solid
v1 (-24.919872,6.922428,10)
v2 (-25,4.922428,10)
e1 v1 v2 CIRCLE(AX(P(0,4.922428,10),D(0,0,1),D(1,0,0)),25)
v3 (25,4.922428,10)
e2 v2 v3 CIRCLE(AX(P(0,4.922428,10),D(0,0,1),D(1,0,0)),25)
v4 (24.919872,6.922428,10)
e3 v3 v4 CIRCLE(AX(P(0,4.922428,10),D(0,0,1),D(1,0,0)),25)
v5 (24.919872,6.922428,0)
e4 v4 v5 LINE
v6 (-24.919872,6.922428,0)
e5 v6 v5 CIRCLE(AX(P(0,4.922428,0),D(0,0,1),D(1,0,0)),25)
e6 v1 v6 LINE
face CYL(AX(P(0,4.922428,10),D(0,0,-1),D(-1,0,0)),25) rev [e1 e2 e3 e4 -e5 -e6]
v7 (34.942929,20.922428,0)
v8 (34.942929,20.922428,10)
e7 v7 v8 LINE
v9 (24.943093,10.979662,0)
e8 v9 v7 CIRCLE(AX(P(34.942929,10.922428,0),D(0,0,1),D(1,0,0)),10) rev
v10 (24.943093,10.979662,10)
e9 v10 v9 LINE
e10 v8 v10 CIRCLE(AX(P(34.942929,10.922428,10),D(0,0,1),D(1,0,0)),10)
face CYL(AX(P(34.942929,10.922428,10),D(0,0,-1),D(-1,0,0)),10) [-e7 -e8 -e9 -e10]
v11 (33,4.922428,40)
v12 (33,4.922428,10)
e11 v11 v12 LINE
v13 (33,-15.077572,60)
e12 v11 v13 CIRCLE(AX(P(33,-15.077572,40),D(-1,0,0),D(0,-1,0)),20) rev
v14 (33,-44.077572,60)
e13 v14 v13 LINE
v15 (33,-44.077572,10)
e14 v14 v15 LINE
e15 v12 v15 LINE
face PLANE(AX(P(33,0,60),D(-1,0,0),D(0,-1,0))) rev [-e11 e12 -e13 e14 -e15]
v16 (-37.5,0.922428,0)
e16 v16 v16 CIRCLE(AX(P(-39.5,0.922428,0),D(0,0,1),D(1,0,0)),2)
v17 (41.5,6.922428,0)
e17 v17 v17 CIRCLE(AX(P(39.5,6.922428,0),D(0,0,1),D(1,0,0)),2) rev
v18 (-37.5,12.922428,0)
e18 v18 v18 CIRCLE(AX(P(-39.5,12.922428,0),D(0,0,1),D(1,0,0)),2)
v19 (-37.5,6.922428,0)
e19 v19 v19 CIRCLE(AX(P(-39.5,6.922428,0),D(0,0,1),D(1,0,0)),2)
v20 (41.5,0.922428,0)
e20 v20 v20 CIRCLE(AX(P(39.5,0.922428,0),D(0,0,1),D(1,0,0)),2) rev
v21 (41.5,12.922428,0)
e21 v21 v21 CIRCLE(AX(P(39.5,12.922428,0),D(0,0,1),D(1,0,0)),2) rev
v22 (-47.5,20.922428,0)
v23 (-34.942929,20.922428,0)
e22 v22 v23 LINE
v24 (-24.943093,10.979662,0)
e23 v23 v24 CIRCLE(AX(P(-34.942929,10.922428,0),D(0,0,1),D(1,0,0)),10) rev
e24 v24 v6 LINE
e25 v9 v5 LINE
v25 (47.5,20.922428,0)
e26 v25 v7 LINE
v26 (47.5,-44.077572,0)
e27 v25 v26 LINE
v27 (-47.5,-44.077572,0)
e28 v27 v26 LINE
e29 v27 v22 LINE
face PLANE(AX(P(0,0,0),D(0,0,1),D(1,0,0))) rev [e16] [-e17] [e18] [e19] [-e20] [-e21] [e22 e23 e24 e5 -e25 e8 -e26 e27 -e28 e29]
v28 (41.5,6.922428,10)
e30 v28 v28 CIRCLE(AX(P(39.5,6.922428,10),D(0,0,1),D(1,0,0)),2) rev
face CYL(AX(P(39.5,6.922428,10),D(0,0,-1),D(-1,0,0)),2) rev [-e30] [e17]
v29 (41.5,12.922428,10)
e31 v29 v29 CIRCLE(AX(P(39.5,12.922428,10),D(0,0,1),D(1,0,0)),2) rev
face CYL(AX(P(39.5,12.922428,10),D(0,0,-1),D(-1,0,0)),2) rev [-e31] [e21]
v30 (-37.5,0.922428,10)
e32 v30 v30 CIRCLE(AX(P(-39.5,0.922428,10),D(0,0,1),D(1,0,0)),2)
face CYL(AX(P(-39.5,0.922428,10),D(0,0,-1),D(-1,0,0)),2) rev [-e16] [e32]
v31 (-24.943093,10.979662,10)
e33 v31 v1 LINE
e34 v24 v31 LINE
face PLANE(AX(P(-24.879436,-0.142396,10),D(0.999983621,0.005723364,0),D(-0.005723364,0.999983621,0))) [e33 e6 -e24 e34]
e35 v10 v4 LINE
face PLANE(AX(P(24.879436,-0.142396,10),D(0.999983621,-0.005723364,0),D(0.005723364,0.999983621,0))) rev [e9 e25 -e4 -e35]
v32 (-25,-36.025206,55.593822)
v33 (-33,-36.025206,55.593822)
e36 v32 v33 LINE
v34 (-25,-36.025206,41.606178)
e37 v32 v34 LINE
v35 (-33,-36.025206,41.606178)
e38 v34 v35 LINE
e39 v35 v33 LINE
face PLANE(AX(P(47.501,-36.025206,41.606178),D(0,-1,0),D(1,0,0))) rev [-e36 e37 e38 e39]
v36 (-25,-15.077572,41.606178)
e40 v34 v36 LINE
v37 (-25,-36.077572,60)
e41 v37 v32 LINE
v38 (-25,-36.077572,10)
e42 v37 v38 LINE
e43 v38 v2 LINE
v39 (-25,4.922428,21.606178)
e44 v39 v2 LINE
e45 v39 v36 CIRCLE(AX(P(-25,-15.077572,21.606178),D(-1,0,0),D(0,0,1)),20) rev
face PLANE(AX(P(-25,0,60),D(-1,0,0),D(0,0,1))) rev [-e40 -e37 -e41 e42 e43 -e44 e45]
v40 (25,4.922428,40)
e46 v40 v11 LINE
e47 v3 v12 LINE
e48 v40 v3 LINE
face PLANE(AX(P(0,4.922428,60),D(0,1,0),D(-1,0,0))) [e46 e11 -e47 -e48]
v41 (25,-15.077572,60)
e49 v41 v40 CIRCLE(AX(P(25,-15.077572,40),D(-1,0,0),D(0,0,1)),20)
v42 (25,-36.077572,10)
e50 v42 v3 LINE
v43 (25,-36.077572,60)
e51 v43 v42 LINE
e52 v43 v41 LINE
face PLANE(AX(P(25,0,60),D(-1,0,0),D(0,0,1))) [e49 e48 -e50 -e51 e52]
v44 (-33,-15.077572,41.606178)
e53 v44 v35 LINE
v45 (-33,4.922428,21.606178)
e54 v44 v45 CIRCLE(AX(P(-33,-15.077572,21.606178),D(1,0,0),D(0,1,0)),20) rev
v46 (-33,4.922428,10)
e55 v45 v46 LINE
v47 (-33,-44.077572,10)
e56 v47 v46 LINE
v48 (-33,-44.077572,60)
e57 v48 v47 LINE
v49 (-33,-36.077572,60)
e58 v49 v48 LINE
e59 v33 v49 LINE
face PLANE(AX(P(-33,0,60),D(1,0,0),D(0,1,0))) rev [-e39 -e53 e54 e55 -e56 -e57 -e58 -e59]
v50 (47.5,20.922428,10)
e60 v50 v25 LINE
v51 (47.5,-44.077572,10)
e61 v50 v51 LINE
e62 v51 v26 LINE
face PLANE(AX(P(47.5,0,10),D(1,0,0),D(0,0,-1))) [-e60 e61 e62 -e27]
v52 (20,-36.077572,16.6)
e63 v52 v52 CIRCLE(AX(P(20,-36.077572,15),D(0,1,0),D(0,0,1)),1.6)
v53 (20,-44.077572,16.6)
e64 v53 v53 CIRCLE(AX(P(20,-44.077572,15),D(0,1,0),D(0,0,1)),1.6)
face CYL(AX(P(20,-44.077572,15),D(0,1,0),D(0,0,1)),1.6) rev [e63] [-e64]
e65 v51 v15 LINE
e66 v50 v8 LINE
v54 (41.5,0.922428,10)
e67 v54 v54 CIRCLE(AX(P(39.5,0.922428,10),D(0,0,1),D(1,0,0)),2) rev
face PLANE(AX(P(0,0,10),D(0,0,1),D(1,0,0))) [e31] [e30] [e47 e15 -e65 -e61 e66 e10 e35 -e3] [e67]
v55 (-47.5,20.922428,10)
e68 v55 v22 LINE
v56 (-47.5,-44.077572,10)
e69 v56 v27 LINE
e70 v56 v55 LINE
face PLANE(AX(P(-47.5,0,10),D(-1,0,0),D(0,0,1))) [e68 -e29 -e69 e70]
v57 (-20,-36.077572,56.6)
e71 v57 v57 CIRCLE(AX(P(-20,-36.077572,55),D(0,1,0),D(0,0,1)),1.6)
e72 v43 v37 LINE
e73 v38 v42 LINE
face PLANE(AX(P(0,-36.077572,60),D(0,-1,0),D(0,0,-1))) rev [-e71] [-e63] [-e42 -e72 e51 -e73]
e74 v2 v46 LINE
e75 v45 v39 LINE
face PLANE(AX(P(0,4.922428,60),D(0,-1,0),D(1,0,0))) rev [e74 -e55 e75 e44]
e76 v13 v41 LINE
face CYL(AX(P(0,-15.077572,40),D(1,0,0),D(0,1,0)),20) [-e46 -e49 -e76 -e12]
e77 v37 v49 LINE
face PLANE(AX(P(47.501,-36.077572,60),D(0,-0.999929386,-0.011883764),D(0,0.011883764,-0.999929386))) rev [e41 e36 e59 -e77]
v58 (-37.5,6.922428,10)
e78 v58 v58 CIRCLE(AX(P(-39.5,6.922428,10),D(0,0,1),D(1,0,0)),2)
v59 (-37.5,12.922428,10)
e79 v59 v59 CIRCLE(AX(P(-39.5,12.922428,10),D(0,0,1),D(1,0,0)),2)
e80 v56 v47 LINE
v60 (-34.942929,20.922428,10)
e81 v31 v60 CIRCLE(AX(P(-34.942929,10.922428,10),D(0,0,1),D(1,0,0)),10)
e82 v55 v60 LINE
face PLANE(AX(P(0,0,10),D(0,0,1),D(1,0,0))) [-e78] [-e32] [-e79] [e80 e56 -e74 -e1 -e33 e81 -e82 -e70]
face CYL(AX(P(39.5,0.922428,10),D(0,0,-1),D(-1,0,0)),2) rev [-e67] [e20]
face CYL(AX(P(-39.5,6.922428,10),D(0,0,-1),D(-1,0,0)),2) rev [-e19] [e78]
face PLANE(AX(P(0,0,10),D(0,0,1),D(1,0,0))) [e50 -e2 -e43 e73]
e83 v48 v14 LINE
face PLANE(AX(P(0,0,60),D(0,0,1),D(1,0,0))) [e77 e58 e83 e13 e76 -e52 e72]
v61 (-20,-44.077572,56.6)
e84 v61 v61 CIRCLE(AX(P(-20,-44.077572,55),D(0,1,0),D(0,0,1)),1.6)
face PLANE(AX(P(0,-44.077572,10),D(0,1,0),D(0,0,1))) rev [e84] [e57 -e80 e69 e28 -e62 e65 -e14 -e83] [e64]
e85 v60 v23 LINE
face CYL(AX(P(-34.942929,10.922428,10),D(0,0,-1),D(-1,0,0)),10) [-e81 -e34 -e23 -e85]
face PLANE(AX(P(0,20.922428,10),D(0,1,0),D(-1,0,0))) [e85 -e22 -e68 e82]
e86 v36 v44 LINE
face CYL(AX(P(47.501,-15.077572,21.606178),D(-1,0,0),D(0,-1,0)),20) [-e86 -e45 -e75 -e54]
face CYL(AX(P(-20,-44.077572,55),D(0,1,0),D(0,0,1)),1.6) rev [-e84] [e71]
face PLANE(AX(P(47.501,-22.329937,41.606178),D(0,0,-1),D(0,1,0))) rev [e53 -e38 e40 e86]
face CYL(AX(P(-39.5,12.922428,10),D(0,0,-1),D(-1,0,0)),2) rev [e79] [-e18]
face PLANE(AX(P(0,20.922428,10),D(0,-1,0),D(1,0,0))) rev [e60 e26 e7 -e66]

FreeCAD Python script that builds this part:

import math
import FreeCAD as App
import Part
import Sketcher
Q = App.Units.Quantity


def edges_at(feature, points):
    """Names of the edges that pass closest to the given points."""
    edges = feature.Shape.Edges
    near = lambda p: min(range(len(edges)), key=lambda i: edges[i].distToShape(Part.Vertex(*p))[0])
    return sorted({f"Edge{near(p) + 1}" for p in points})


def add_polygon(sketch, points):
    """Adds a closed chain of lines whose ends are joined by coincident constraints."""
    first, n = sketch.GeometryCount, len(points)
    for a, b in zip(points, points[1:] + points[:1]):
        sketch.addGeometry(Part.LineSegment(App.Vector(*a, 0), App.Vector(*b, 0)), False)
    for i in range(n):
        sketch.addConstraint(Sketcher.Constraint("Coincident", first + i, 2, first + (i + 1) % n, 1))

doc = App.newDocument("Part")
body = doc.addObject("PartDesign::Body", "Body")

# Sketch on XY plane
sketch1 = doc.addObject("Sketcher::SketchObject", "Sketch")
body.addObject(sketch1)
sketch1.AttachmentSupport = (doc.XY_Plane, [""])
sketch1.MapMode = "FlatFace"
sketch1.addGeometry(Part.LineSegment(App.Vector(-47.5, 20.922428, 0), App.Vector(-47.5, -44.077572, 0)), False)
sketch1.addGeometry(Part.LineSegment(App.Vector(-47.5, -44.077572, 0), App.Vector(-33, -44.077572, 0)), False)
sketch1.addGeometry(Part.LineSegment(App.Vector(-33, -44.077572, 0), App.Vector(-33, 4.922428, 0)), False)
sketch1.addGeometry(Part.LineSegment(App.Vector(-33, 4.922428, 0), App.Vector(-25, 4.922428, 0)), False)
sketch1.addGeometry(Part.ArcOfCircle(Part.Circle(App.Vector(0, 4.922428, 0), App.Vector(0, 0, 1), 25), math.radians(175.411434), math.radians(180)), False)
sketch1.addGeometry(Part.LineSegment(App.Vector(-24.919872, 6.922428, 0), App.Vector(-25, 20.922428, 0)), False)
sketch1.addGeometry(Part.LineSegment(App.Vector(-25, 20.922428, 0), App.Vector(-47.5, 20.922428, 0)), False)
sketch1.addGeometry(Part.Circle(App.Vector(-39.5, 0.922428, 0), App.Vector(0, 0, 1), 2), False)
sketch1.addGeometry(Part.Circle(App.Vector(-39.5, 6.922428, 0), App.Vector(0, 0, 1), 2), False)
sketch1.addGeometry(Part.Circle(App.Vector(-39.5, 12.922428, 0), App.Vector(0, 0, 1), 2), False)
sketch1.addConstraint(Sketcher.Constraint("Coincident", 0, 2, 1, 1))
sketch1.addConstraint(Sketcher.Constraint("Coincident", 1, 2, 2, 1))
sketch1.addConstraint(Sketcher.Constraint("Coincident", 2, 2, 3, 1))
sketch1.addConstraint(Sketcher.Constraint("Coincident", 3, 2, 4, 2))
sketch1.addConstraint(Sketcher.Constraint("Coincident", 4, 1, 5, 1))
sketch1.addConstraint(Sketcher.Constraint("Coincident", 5, 2, 6, 1))
sketch1.addConstraint(Sketcher.Constraint("Coincident", 6, 2, 0, 1))
sketch1.addConstraint(Sketcher.Constraint("Vertical", 0))
sketch1.addConstraint(Sketcher.Constraint("Horizontal", 1))
sketch1.addConstraint(Sketcher.Constraint("Vertical", 2))
sketch1.addConstraint(Sketcher.Constraint("Horizontal", 3))
sketch1.addConstraint(Sketcher.Constraint("Horizontal", 6))
sketch1.addConstraint(Sketcher.Constraint("Equal", 7, 8))
sketch1.addConstraint(Sketcher.Constraint("Equal", 8, 9))
sketch1.addConstraint(Sketcher.Constraint("PointOnObject", 4, 3, -2))
sketch1.addConstraint(Sketcher.Constraint("Horizontal", 4, 3, 2, 2))
sketch1.addConstraint(Sketcher.Constraint("Horizontal", 8, 3, 4, 1))
sketch1.addConstraint(Sketcher.Constraint("Vertical", 7, 3, 8, 3))
sketch1.addConstraint(Sketcher.Constraint("Vertical", 8, 3, 9, 3))
sketch1.addConstraint(Sketcher.Constraint("Vertical", 3, 2, 5, 2))
sketch1.addConstraint(Sketcher.Constraint("Diameter", 7, Q("4 mm")))
sketch1.addConstraint(Sketcher.Constraint("Radius", 4, Q("25 mm")))
sketch1.addConstraint(Sketcher.Constraint("DistanceX", 3, 1, 3, 2, Q("8 mm")))
sketch1.addConstraint(Sketcher.Constraint("DistanceY", 0, 2, 0, 1, Q("65 mm")))
sketch1.addConstraint(Sketcher.Constraint("DistanceY", 2, 1, 2, 2, Q("49 mm")))
sketch1.addConstraint(Sketcher.Constraint("DistanceX", 1, 1, 1, 2, Q("14.5 mm")))
sketch1.addConstraint(Sketcher.Constraint("DistanceY", 7, 3, 4, 3, Q("4 mm")))
sketch1.addConstraint(Sketcher.Constraint("DistanceY", 7, 3, 8, 3, Q("6 mm")))
sketch1.addConstraint(Sketcher.Constraint("DistanceY", 8, 3, 9, 3, Q("6 mm")))
sketch1.addConstraint(Sketcher.Constraint("DistanceX", 0, 2, 7, 3, Q("8 mm")))
sketch1.addConstraint(Sketcher.Constraint("DistanceY", -1, 1, 4, 3, Q("4.922428 mm")))
pad1 = doc.addObject("PartDesign::Pad", "Pad")
body.addObject(pad1)
pad1.Profile = sketch1
pad1.Length = 10
body2 = doc.addObject("PartDesign::Body", "Body001")

# Sketch on XY plane
sketch2 = doc.addObject("Sketcher::SketchObject", "Sketch001")
body2.addObject(sketch2)
sketch2.AttachmentSupport = (doc.getObject("XY_Plane001"), [""])
sketch2.MapMode = "FlatFace"
sketch2.addGeometry(Part.ArcOfCircle(Part.Circle(App.Vector(0, 4.922428, 0), App.Vector(0, 0, 1), 25), math.radians(-180), math.radians(-9.206896)), False)
sketch2.addGeometry(Part.LineSegment(App.Vector(-25, 4.922428, 0), App.Vector(-25, -36.077572, 0)), False)
sketch2.addGeometry(Part.LineSegment(App.Vector(-25, -36.077572, 0), App.Vector(25, -36.077572, 0)), False)
sketch2.addGeometry(Part.LineSegment(App.Vector(25, -36.077572, 0), App.Vector(25, 4.922428, 0)), False)
sketch2.addGeometry(Part.ArcOfCircle(Part.Circle(App.Vector(0, 4.922428, 0), App.Vector(0, 0, 1), 25), math.radians(-9.206896), math.radians(0)), False)
sketch2.addConstraint(Sketcher.Constraint("Tangent", 0, 1, 1, 1))
sketch2.addConstraint(Sketcher.Constraint("Coincident", 1, 2, 2, 1))
sketch2.addConstraint(Sketcher.Constraint("Coincident", 2, 2, 3, 1))
sketch2.addConstraint(Sketcher.Constraint("Tangent", 3, 2, 4, 2))
sketch2.addConstraint(Sketcher.Constraint("Tangent", 4, 1, 0, 2))
sketch2.addConstraint(Sketcher.Constraint("Vertical", 1))
sketch2.addConstraint(Sketcher.Constraint("Horizontal", 2))
sketch2.addConstraint(Sketcher.Constraint("Vertical", 3))
sketch2.addConstraint(Sketcher.Constraint("Equal", 0, 4))
sketch2.addConstraint(Sketcher.Constraint("PointOnObject", 0, 3, -2))
sketch2.addConstraint(Sketcher.Constraint("Radius", 0, Q("25 mm")))
sketch2.addConstraint(Sketcher.Constraint("DistanceY", 1, 2, 1, 1, Q("41 mm")))
sketch2.addConstraint(Sketcher.Constraint("DistanceY", 4, 1, 3, 2, Q("4 mm")))
sketch2.addConstraint(Sketcher.Constraint("DistanceY", -1, 1, 0, 3, Q("4.922428 mm")))
pad2 = doc.addObject("PartDesign::Pad", "Pad001")
body2.addObject(pad2)
pad2.Profile = sketch2
pad2.Length = 10
body3 = doc.addObject("PartDesign::Body", "Body002")

# Sketch on XY plane
sketch3 = doc.addObject("Sketcher::SketchObject", "Sketch002")
body3.addObject(sketch3)
sketch3.AttachmentSupport = (doc.getObject("XY_Plane002"), [""])
sketch3.MapMode = "FlatFace"
sketch3.addGeometry(Part.LineSegment(App.Vector(33, -44.077572, 0), App.Vector(47.5, -44.077572, 0)), False)
sketch3.addGeometry(Part.LineSegment(App.Vector(47.5, -44.077572, 0), App.Vector(47.5, 20.922428, 0)), False)
sketch3.addGeometry(Part.LineSegment(App.Vector(47.5, 20.922428, 0), App.Vector(25, 20.922428, 0)), False)
sketch3.addGeometry(Part.LineSegment(App.Vector(25, 20.922428, 0), App.Vector(24.919872, 6.922428, 0)), False)
sketch3.addGeometry(Part.ArcOfCircle(Part.Circle(App.Vector(0, 4.922428, 0), App.Vector(0, 0, 1), 25), math.radians(0), math.radians(4.588566)), False)
sketch3.addGeometry(Part.LineSegment(App.Vector(25, 4.922428, 0), App.Vector(33, 4.922428, 0)), False)
sketch3.addGeometry(Part.LineSegment(App.Vector(33, 4.922428, 0), App.Vector(33, -44.077572, 0)), False)
sketch3.addGeometry(Part.Circle(App.Vector(39.5, 0.922428, 0), App.Vector(0, 0, 1), 2), False)
sketch3.addGeometry(Part.Circle(App.Vector(39.5, 6.922428, 0), App.Vector(0, 0, 1), 2), False)
sketch3.addGeometry(Part.Circle(App.Vector(39.5, 12.922428, 0), App.Vector(0, 0, 1), 2), False)
sketch3.addConstraint(Sketcher.Constraint("Coincident", 0, 2, 1, 1))
sketch3.addConstraint(Sketcher.Constraint("Coincident", 1, 2, 2, 1))
sketch3.addConstraint(Sketcher.Constraint("Coincident", 2, 2, 3, 1))
sketch3.addConstraint(Sketcher.Constraint("Coincident", 3, 2, 4, 2))
sketch3.addConstraint(Sketcher.Constraint("Coincident", 4, 1, 5, 1))
sketch3.addConstraint(Sketcher.Constraint("Coincident", 5, 2, 6, 1))
sketch3.addConstraint(Sketcher.Constraint("Coincident", 6, 2, 0, 1))
sketch3.addConstraint(Sketcher.Constraint("Horizontal", 0))
sketch3.addConstraint(Sketcher.Constraint("Vertical", 1))
sketch3.addConstraint(Sketcher.Constraint("Horizontal", 2))
sketch3.addConstraint(Sketcher.Constraint("Horizontal", 5))
sketch3.addConstraint(Sketcher.Constraint("Vertical", 6))
sketch3.addConstraint(Sketcher.Constraint("Equal", 7, 8))
sketch3.addConstraint(Sketcher.Constraint("Equal", 8, 9))
sketch3.addConstraint(Sketcher.Constraint("PointOnObject", 4, 3, -2))
sketch3.addConstraint(Sketcher.Constraint("Horizontal", 8, 3, 3, 2))
sketch3.addConstraint(Sketcher.Constraint("Vertical", 7, 3, 8, 3))
sketch3.addConstraint(Sketcher.Constraint("Vertical", 8, 3, 9, 3))
sketch3.addConstraint(Sketcher.Constraint("Vertical", 2, 2, 4, 1))
sketch3.addConstraint(Sketcher.Constraint("Diameter", 7, Q("4 mm")))
sketch3.addConstraint(Sketcher.Constraint("Radius", 4, Q("25 mm")))
sketch3.addConstraint(Sketcher.Constraint("DistanceX", 5, 1, 5, 2, Q("8 mm")))
sketch3.addConstraint(Sketcher.Constraint("DistanceY", 1, 1, 1, 2, Q("65 mm")))
sketch3.addConstraint(Sketcher.Constraint("DistanceY", 6, 2, 6, 1, Q("49 mm")))
sketch3.addConstraint(Sketcher.Constraint("DistanceX", 0, 1, 0, 2, Q("14.5 mm")))
sketch3.addConstraint(Sketcher.Constraint("DistanceY", 7, 3, 4, 3, Q("4 mm")))
sketch3.addConstraint(Sketcher.Constraint("DistanceY", 7, 3, 8, 3, Q("6 mm")))
sketch3.addConstraint(Sketcher.Constraint("DistanceY", 8, 3, 9, 3, Q("6 mm")))
sketch3.addConstraint(Sketcher.Constraint("DistanceX", 7, 3, 0, 2, Q("8 mm")))
sketch3.addConstraint(Sketcher.Constraint("DistanceY", 0, 2, 7, 3, Q("45 mm")))
sketch3.addConstraint(Sketcher.Constraint("DistanceY", -1, 1, 4, 3, Q("4.922428 mm")))
pad3 = doc.addObject("PartDesign::Pad", "Pad002")
body3.addObject(pad3)
pad3.Profile = sketch3
pad3.Length = 10
body.AllowCompound = True
doc.recompute()

boolean = doc.addObject("PartDesign::Boolean", "Boolean")
body.addObject(boolean)
boolean.Type = "Fuse"
boolean.addObjects([body2])
doc.recompute()

boolean2 = doc.addObject("PartDesign::Boolean", "Boolean001")
body.addObject(boolean2)
boolean2.Type = "Fuse"
boolean2.addObjects([body3])

# Sketch on XY plane
sketch4 = doc.addObject("Sketcher::SketchObject", "Sketch003")
body.addObject(sketch4)
sketch4.AttachmentSupport = (doc.XY_Plane, [""])
sketch4.MapMode = "FlatFace"
add_polygon(sketch4, [(-33, 4.922428), (-33, -44.077572), (33, -44.077572), (33, 4.922428), (25, 4.922428), (25, -36.077572), (-25, -36.077572), (-25, 4.922428)])  # lines 0-7
sketch4.addConstraint(Sketcher.Constraint("Vertical", 0))
sketch4.addConstraint(Sketcher.Constraint("Horizontal", 1))
sketch4.addConstraint(Sketcher.Constraint("Vertical", 2))
sketch4.addConstraint(Sketcher.Constraint("Horizontal", 3))
sketch4.addConstraint(Sketcher.Constraint("Vertical", 4))
sketch4.addConstraint(Sketcher.Constraint("Horizontal", 5))
sketch4.addConstraint(Sketcher.Constraint("Vertical", 6))
sketch4.addConstraint(Sketcher.Constraint("Horizontal", 7))
sketch4.addConstraint(Sketcher.Constraint("Symmetric", 3, 2, 6, 2, -2))
sketch4.addConstraint(Sketcher.Constraint("Equal", 3, 7))
sketch4.addConstraint(Sketcher.Constraint("DistanceX", 1, 1, 1, 2, Q("66 mm")))
sketch4.addConstraint(Sketcher.Constraint("DistanceX", 3, 2, 3, 1, Q("8 mm")))
sketch4.addConstraint(Sketcher.Constraint("DistanceY", 0, 2, 0, 1, Q("49 mm")))
sketch4.addConstraint(Sketcher.Constraint("DistanceY", 4, 2, 4, 1, Q("41 mm")))
sketch4.addConstraint(Sketcher.Constraint("DistanceY", 0, 2, -1, 1, Q("44.077572 mm")))
pad4 = doc.addObject("PartDesign::Pad", "Pad003")
body.addObject(pad4)
pad4.Profile = sketch4
pad4.Length = 60

# Sketch on YZ plane
sketch5 = doc.addObject("Sketcher::SketchObject", "Sketch004")
body.addObject(sketch5)
sketch5.AttachmentSupport = (doc.YZ_Plane, [""])
sketch5.MapMode = "FlatFace"
sketch5.AttachmentOffset = App.Placement(App.Vector(0, 0, -33), App.Rotation())
add_polygon(sketch5, [(4.922428, 41.606178), (-36.025206, 41.606178), (-36.025206, 55.593822), (-36.077572, 60), (4.922428, 60)])  # lines 0-4
sketch5.addConstraint(Sketcher.Constraint("Horizontal", 0))
sketch5.addConstraint(Sketcher.Constraint("Vertical", 1))
sketch5.addConstraint(Sketcher.Constraint("Horizontal", 3))
sketch5.addConstraint(Sketcher.Constraint("Vertical", 4))
sketch5.addConstraint(Sketcher.Constraint("DistanceX", 3, 1, 3, 2, Q("41 mm")))
sketch5.addConstraint(Sketcher.Constraint("DistanceY", -1, 1, 2, 2, Q("60 mm")))
sketch5.addConstraint(Sketcher.Constraint("DistanceY", 4, 2, 4, 1, Q("18.393822 mm")))
sketch5.addConstraint(Sketcher.Constraint("Distance", 2, Q("4.40649 mm")))
sketch5.addConstraint(Sketcher.Constraint("DistanceX", 0, 2, 0, 1, Q("40.947634 mm")))
sketch5.addConstraint(Sketcher.Constraint("DistanceX", 2, 2, -1, 1, Q("36.077572 mm")))
pocket1 = doc.addObject("PartDesign::Pocket", "Pocket")
body.addObject(pocket1)
pocket1.Profile = sketch5
pocket1.Type = "UpToFirst"
pocket1.Reversed = True
doc.recompute()

fillet = doc.addObject("PartDesign::Fillet", "Fillet")
body.addObject(fillet)
fillet.Base = (pocket1, edges_at(pocket1, [(29, 4.922, 60)]))
fillet.Radius = 20
doc.recompute()

fillet2 = doc.addObject("PartDesign::Fillet", "Fillet001")
body.addObject(fillet2)
fillet2.Base = (fillet, edges_at(fillet, [(-25, 20.922, 5), (25, 20.922, 5)]))
fillet2.Radius = 10
doc.recompute()

fillet3 = doc.addObject("PartDesign::Fillet", "Fillet002")
body.addObject(fillet3)
fillet3.Base = (fillet2, edges_at(fillet2, [(-29, 4.922, 41.606)]))
fillet3.Radius = 20

# Sketch on XZ plane
sketch6 = doc.addObject("Sketcher::SketchObject", "Sketch005")
body.addObject(sketch6)
sketch6.AttachmentSupport = (doc.XZ_Plane, [""])
sketch6.MapMode = "FlatFace"
sketch6.AttachmentOffset = App.Placement(App.Vector(0, 0, 36.077572), App.Rotation())
sketch6.addGeometry(Part.Circle(App.Vector(-20, 55, 0), App.Vector(0, 0, 1), 1.6), False)
sketch6.addGeometry(Part.Circle(App.Vector(20, 15, 0), App.Vector(0, 0, 1), 1.6), False)
sketch6.addConstraint(Sketcher.Constraint("Equal", 0, 1))
sketch6.addConstraint(Sketcher.Constraint("Diameter", 0, Q("3.2 mm")))
sketch6.addConstraint(Sketcher.Constraint("DistanceX", 0, 3, -1, 1, Q("20 mm")))
sketch6.addConstraint(Sketcher.Constraint("DistanceY", -1, 1, 0, 3, Q("55 mm")))
sketch6.addConstraint(Sketcher.Constraint("DistanceX", -1, 1, 1, 3, Q("20 mm")))
sketch6.addConstraint(Sketcher.Constraint("DistanceY", -1, 1, 1, 3, Q("15 mm")))
pocket2 = doc.addObject("PartDesign::Pocket", "Pocket001")
body.addObject(pocket2)
pocket2.Profile = sketch6
pocket2.Type = "ThroughAll"
pocket2.Reversed = True

doc.recompute()
